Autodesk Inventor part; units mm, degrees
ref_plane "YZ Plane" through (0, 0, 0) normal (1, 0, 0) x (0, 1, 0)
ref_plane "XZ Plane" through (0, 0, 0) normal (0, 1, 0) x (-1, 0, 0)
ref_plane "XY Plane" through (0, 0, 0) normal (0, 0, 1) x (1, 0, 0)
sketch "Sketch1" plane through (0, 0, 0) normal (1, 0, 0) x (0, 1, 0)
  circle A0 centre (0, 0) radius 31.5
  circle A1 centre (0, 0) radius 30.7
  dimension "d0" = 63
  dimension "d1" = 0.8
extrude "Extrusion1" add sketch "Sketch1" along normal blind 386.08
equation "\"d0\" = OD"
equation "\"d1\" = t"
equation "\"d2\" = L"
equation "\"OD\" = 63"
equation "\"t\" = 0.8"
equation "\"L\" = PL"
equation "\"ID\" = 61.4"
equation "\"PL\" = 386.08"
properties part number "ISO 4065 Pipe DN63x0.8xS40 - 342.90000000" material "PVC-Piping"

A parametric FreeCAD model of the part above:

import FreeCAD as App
import Part
import Sketcher

V = App.Vector
Q = App.Units.Quantity

doc = App.newDocument("Part")
body = doc.addObject("PartDesign::Body", "Body")

# Sketch on YZ plane
sketch1 = body.newObject("Sketcher::SketchObject", "Sketch")
sketch1.AttachmentSupport = (doc.getObject("YZ_Plane"), [""])
sketch1.MapMode = "FlatFace"
sketch1.addGeometry([
    Part.Circle(V(0, 0, 0), V(0, 0, 1), 31.5),
    Part.Circle(V(0, 0, 0), V(0, 0, 1), 30.7),
], False)
sketch1.addConstraint([
    Sketcher.Constraint("Coincident", 0, 3, -1, 1),
    Sketcher.Constraint("Coincident", 1, 3, -1, 1),
    Sketcher.Constraint("Diameter", 0, Q("63 mm")),
    Sketcher.Constraint("Diameter", 1, Q("61.4 mm")),
])
pad1 = body.newObject("PartDesign::Pad", "Pad")
pad1.Profile = sketch1
pad1.Length = 386.08

doc.recompute()
